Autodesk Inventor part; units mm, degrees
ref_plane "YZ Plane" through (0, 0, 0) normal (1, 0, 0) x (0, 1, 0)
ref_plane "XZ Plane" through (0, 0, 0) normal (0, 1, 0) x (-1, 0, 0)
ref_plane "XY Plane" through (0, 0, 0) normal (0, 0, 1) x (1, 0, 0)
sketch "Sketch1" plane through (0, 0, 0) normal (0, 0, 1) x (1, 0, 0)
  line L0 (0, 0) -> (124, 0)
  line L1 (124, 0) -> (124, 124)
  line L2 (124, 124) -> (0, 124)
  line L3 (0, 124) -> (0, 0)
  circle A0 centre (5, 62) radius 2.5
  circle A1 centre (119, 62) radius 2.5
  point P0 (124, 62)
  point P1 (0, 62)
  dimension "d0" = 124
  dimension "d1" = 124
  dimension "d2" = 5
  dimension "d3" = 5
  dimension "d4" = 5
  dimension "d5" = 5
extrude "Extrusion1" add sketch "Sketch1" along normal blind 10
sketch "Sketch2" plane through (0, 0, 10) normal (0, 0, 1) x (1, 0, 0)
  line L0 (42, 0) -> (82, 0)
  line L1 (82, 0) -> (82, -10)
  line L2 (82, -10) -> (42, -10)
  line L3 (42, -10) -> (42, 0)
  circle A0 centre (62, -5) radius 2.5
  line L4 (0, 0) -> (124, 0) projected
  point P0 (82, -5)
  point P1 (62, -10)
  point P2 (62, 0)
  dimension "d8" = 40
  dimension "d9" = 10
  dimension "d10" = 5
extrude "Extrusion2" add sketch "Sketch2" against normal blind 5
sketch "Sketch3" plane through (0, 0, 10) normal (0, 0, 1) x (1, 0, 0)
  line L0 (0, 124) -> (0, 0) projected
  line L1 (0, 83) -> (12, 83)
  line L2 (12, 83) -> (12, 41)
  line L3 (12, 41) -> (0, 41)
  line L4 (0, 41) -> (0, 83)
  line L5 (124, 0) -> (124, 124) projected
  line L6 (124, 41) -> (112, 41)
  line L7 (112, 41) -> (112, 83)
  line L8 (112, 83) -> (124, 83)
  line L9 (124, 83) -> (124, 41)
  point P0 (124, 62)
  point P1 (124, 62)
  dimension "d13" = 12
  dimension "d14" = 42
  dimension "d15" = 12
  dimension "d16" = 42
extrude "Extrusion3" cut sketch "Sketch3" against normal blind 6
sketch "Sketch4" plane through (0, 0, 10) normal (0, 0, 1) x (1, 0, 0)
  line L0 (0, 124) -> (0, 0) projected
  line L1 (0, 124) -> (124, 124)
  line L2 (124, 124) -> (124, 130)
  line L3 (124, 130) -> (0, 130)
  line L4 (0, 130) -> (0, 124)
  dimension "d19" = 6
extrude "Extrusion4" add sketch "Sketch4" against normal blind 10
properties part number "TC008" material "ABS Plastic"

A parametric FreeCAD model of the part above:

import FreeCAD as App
import Part
import Sketcher

V = App.Vector
Q = App.Units.Quantity


def add_polygon(sketch, points):
    """Adds a closed chain of lines whose ends are joined by coincident constraints."""
    first, n = sketch.GeometryCount, len(points)
    for a, b in zip(points, points[1:] + points[:1]):
        sketch.addGeometry(Part.LineSegment(App.Vector(*a, 0), App.Vector(*b, 0)), False)
    for i in range(n):
        sketch.addConstraint(Sketcher.Constraint("Coincident", first + i, 2, first + (i + 1) % n, 1))

doc = App.newDocument("Part")
body = doc.addObject("PartDesign::Body", "Body")

# Sketch on XY plane
sketch1 = doc.addObject("Sketcher::SketchObject", "Sketch")
body.addObject(sketch1)
sketch1.AttachmentSupport = (doc.XY_Plane, [""])
sketch1.MapMode = "FlatFace"
add_polygon(sketch1, [(0, 124), (0, 0), (124, 0), (124, 124)])  # lines 0-3
sketch1.addGeometry(Part.Circle(V(5, 62, 0), V(0, 0, 1), 2.5), False)  # 4
sketch1.addGeometry(Part.Circle(V(119, 62, 0), V(0, 0, 1), 2.5), False)  # 5
sketch1.addConstraint(Sketcher.Constraint("Vertical", 0))
sketch1.addConstraint(Sketcher.Constraint("Horizontal", 1))
sketch1.addConstraint(Sketcher.Constraint("Vertical", 2))
sketch1.addConstraint(Sketcher.Constraint("Horizontal", 3))
sketch1.addConstraint(Sketcher.Constraint("Coincident", 0, 2, -1, 1))
sketch1.addConstraint(Sketcher.Constraint("Equal", 4, 5))
sketch1.addConstraint(Sketcher.Constraint("Horizontal", 4, 3, 5, 3))
sketch1.addConstraint(Sketcher.Constraint("Equal", 3, 0))
sketch1.addConstraint(Sketcher.Constraint("Diameter", 4, Q("5 mm")))
sketch1.addConstraint(Sketcher.Constraint("DistanceX", 1, 1, 1, 2, Q("124 mm")))
sketch1.addConstraint(Sketcher.Constraint("DistanceX", -1, 1, 4, 3, Q("5 mm")))
sketch1.addConstraint(Sketcher.Constraint("DistanceX", 5, 3, 1, 2, Q("5 mm")))
sketch1.addConstraint(Sketcher.Constraint("DistanceY", -1, 1, 4, 3, Q("62 mm")))
pad1 = doc.addObject("PartDesign::Pad", "Pad")
body.addObject(pad1)
pad1.Profile = sketch1
pad1.Length = 10

# Sketch on XY plane
sketch2 = doc.addObject("Sketcher::SketchObject", "Sketch001")
body.addObject(sketch2)
sketch2.AttachmentSupport = (doc.XY_Plane, [""])
sketch2.MapMode = "FlatFace"
sketch2.AttachmentOffset = App.Placement(V(0, 0, 10), App.Rotation())
add_polygon(sketch2, [(82, 0), (42, 0), (42, -10), (82, -10)])  # lines 0-3
sketch2.addGeometry(Part.Circle(V(62, -5, 0), V(0, 0, 1), 2.5), False)  # 4
sketch2.addConstraint(Sketcher.Constraint("Horizontal", 0))
sketch2.addConstraint(Sketcher.Constraint("Vertical", 1))
sketch2.addConstraint(Sketcher.Constraint("Horizontal", 2))
sketch2.addConstraint(Sketcher.Constraint("Vertical", 3))
sketch2.addConstraint(Sketcher.Constraint("PointOnObject", 0, 2, -1))
sketch2.addConstraint(Sketcher.Constraint("Diameter", 4, Q("5 mm")))
sketch2.addConstraint(Sketcher.Constraint("DistanceX", 0, 2, 0, 1, Q("40 mm")))
sketch2.addConstraint(Sketcher.Constraint("DistanceY", 1, 2, 1, 1, Q("10 mm")))
sketch2.addConstraint(Sketcher.Constraint("DistanceY", 4, 3, -1, 1, Q("5 mm")))
sketch2.addConstraint(Sketcher.Constraint("DistanceX", -1, 1, 4, 3, Q("62 mm")))
sketch2.addConstraint(Sketcher.Constraint("DistanceX", -1, 1, 0, 2, Q("42 mm")))
pad2 = doc.addObject("PartDesign::Pad", "Pad001")
body.addObject(pad2)
pad2.Profile = sketch2
pad2.Length = 5
pad2.Reversed = True

# Sketch on XY plane
sketch3 = doc.addObject("Sketcher::SketchObject", "Sketch002")
body.addObject(sketch3)
sketch3.AttachmentSupport = (doc.XY_Plane, [""])
sketch3.MapMode = "FlatFace"
sketch3.AttachmentOffset = App.Placement(V(0, 0, 10), App.Rotation())
add_polygon(sketch3, [(12, 83), (0, 83), (0, 41), (12, 41)])  # lines 0-3
add_polygon(sketch3, [(112, 41), (124, 41), (124, 83), (112, 83)])  # lines 4-7
sketch3.addConstraint(Sketcher.Constraint("Horizontal", 0))
sketch3.addConstraint(Sketcher.Constraint("Vertical", 1))
sketch3.addConstraint(Sketcher.Constraint("Horizontal", 2))
sketch3.addConstraint(Sketcher.Constraint("Vertical", 3))
sketch3.addConstraint(Sketcher.Constraint("Horizontal", 4))
sketch3.addConstraint(Sketcher.Constraint("Vertical", 5))
sketch3.addConstraint(Sketcher.Constraint("Horizontal", 6))
sketch3.addConstraint(Sketcher.Constraint("Vertical", 7))
sketch3.addConstraint(Sketcher.Constraint("PointOnObject", 0, 2, -2))
sketch3.addConstraint(Sketcher.Constraint("Horizontal", 2, 2, 4, 2))
sketch3.addConstraint(Sketcher.Constraint("Horizontal", 3, 2, 5, 2))
sketch3.addConstraint(Sketcher.Constraint("Equal", 2, 4))
sketch3.addConstraint(Sketcher.Constraint("DistanceX", 0, 2, 0, 1, Q("12 mm")))
sketch3.addConstraint(Sketcher.Constraint("DistanceY", 1, 2, 1, 1, Q("42 mm")))
sketch3.addConstraint(Sketcher.Constraint("DistanceY", -1, 1, 0, 2, Q("83 mm")))
sketch3.addConstraint(Sketcher.Constraint("DistanceX", -1, 1, 4, 2, Q("124 mm")))
pocket1 = doc.addObject("PartDesign::Pocket", "Pocket")
body.addObject(pocket1)
pocket1.Profile = sketch3
pocket1.Length = 6

# Sketch on XY plane
sketch4 = doc.addObject("Sketcher::SketchObject", "Sketch003")
body.addObject(sketch4)
sketch4.AttachmentSupport = (doc.XY_Plane, [""])
sketch4.MapMode = "FlatFace"
sketch4.AttachmentOffset = App.Placement(V(0, 0, 10), App.Rotation())
add_polygon(sketch4, [(0, 130), (0, 124), (124, 124), (124, 130)])  # lines 0-3
sketch4.addConstraint(Sketcher.Constraint("Vertical", 0))
sketch4.addConstraint(Sketcher.Constraint("Horizontal", 1))
sketch4.addConstraint(Sketcher.Constraint("Vertical", 2))
sketch4.addConstraint(Sketcher.Constraint("Horizontal", 3))
sketch4.addConstraint(Sketcher.Constraint("PointOnObject", 0, 2, -2))
sketch4.addConstraint(Sketcher.Constraint("DistanceY", 0, 2, 0, 1, Q("6 mm")))
sketch4.addConstraint(Sketcher.Constraint("DistanceX", 1, 1, 1, 2, Q("124 mm")))
sketch4.addConstraint(Sketcher.Constraint("DistanceY", -1, 1, 0, 2, Q("124 mm")))
pad3 = doc.addObject("PartDesign::Pad", "Pad002")
body.addObject(pad3)
pad3.Profile = sketch4
pad3.Length = 10
pad3.Reversed = True

doc.recompute()
